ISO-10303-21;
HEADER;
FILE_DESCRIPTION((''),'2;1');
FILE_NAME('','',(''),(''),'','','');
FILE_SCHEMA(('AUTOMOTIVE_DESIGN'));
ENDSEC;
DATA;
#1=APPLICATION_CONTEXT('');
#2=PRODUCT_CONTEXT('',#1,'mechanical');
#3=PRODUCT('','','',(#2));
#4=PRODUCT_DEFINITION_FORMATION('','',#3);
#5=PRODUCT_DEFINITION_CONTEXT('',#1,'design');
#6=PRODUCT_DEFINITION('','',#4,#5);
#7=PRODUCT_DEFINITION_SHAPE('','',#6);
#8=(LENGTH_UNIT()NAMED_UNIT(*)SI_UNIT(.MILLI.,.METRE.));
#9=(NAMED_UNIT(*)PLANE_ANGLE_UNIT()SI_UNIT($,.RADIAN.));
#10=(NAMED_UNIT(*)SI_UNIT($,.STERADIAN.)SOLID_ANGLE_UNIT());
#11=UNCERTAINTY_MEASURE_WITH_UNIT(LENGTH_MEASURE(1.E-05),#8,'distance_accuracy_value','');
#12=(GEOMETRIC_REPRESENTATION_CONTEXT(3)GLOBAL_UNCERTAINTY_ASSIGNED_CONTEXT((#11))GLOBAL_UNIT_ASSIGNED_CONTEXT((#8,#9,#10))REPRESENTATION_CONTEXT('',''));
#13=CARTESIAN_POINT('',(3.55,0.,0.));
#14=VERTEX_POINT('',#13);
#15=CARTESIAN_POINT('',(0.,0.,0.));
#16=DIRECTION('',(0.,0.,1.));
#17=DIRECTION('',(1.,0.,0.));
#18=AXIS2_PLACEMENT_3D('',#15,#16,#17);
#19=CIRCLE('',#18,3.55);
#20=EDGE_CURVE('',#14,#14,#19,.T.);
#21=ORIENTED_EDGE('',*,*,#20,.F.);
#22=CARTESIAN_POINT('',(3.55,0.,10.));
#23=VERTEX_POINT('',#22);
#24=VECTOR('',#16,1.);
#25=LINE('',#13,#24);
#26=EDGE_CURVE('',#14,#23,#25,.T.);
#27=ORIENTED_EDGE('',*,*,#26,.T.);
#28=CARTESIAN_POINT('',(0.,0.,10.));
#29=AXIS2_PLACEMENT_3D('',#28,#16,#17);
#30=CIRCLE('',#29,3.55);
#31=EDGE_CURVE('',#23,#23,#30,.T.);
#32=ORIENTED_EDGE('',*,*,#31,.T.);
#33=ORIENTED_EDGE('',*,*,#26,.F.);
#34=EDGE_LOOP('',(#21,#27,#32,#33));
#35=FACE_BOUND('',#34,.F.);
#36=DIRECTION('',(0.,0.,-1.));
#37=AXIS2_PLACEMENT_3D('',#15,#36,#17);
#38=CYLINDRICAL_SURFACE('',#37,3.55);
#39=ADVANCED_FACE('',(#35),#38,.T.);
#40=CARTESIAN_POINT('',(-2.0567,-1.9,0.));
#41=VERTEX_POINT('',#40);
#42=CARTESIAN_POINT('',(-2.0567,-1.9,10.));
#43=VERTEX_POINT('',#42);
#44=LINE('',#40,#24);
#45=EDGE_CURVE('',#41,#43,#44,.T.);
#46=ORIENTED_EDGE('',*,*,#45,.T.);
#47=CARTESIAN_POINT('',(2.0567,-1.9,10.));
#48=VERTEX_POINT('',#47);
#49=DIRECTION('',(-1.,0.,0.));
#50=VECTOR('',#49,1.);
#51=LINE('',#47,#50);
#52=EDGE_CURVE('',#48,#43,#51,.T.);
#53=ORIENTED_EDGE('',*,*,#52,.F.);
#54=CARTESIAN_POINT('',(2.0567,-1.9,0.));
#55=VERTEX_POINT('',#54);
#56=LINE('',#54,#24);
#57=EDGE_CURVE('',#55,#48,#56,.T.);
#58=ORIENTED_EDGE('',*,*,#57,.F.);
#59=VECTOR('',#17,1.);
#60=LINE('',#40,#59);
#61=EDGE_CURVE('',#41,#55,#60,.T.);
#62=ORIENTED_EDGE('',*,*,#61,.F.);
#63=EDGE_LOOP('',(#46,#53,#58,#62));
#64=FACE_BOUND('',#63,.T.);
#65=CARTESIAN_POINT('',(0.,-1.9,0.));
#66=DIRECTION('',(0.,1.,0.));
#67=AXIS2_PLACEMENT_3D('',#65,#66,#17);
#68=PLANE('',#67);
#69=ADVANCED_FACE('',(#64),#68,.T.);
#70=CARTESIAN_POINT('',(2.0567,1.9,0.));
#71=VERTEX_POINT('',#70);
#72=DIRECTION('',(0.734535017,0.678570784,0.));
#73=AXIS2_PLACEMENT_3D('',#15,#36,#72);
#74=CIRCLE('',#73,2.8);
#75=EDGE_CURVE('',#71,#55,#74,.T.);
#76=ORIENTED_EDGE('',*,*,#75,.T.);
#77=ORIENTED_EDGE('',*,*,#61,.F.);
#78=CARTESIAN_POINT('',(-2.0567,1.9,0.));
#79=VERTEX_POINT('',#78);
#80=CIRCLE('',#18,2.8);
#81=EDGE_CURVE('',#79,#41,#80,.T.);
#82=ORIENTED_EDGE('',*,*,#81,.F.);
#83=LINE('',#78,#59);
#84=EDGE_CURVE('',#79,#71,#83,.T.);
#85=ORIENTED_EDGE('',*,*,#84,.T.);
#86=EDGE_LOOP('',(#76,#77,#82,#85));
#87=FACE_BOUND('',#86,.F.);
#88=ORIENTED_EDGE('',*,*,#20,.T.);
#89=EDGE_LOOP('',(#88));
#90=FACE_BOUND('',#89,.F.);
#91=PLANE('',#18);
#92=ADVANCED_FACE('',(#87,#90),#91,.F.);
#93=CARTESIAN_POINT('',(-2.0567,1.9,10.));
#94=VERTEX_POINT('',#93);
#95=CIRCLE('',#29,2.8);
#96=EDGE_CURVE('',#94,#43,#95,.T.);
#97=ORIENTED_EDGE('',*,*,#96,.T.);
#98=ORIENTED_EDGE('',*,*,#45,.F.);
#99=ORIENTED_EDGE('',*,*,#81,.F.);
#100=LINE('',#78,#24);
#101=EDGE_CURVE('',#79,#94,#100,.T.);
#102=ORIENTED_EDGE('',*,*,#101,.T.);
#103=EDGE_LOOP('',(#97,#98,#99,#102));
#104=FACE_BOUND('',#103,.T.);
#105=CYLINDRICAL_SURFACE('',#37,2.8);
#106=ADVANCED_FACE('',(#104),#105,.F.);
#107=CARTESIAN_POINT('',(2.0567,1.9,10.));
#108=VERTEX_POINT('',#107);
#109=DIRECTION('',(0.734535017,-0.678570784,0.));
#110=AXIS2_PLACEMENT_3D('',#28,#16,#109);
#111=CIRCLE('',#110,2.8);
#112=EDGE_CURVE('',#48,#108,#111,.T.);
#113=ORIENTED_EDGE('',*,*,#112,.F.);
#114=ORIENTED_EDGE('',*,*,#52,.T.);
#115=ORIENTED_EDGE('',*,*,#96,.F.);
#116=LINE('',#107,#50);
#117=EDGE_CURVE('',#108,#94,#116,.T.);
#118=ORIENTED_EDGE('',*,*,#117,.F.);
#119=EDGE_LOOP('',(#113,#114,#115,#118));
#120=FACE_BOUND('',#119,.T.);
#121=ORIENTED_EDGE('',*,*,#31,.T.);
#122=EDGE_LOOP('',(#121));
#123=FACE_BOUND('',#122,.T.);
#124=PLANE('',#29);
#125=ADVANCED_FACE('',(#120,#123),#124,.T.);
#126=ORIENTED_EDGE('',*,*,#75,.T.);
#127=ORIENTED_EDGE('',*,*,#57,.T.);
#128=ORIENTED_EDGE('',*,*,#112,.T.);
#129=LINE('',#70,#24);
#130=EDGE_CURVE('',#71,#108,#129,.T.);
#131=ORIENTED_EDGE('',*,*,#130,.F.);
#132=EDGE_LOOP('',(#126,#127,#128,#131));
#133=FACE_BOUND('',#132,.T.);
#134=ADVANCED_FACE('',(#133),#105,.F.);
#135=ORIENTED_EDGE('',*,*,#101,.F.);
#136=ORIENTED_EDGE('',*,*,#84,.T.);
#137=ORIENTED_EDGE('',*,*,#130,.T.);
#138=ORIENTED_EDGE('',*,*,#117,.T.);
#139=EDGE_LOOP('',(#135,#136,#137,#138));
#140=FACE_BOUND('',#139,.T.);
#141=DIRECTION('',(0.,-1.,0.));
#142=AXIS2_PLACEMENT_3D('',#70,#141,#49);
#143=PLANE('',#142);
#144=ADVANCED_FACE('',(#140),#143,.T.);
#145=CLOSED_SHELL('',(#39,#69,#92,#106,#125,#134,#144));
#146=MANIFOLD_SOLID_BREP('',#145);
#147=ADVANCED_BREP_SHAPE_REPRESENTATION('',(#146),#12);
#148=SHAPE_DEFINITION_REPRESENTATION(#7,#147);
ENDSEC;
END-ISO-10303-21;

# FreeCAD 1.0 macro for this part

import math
import FreeCAD as App
import Part
import Sketcher

doc = App.newDocument("Part")
body = doc.addObject("PartDesign::Body", "Body")

sketch1 = body.newObject("Sketcher::SketchObject", "Sketch")
sketch1.AttachmentSupport = (doc.getObject("XY_Plane"), [""])
sketch1.MapMode = "FlatFace"
sketch1.addGeometry([
    Part.Circle(App.Vector(0, 0, 0), App.Vector(0, 0, 1), 3.55),
    Part.ArcOfCircle(Part.Circle(App.Vector(0, 0, 0), App.Vector(0, 0, 1), 2.8), math.radians(-42.73206), math.radians(42.73206)),
    Part.LineSegment(App.Vector(2.0567, -1.9, 0), App.Vector(-2.0567, -1.9, 0)),
    Part.ArcOfCircle(Part.Circle(App.Vector(0, 0, 0), App.Vector(0, 0, 1), 2.8), math.radians(137.26794), math.radians(222.73206)),
    Part.LineSegment(App.Vector(-2.0567, 1.9, 0), App.Vector(2.0567, 1.9, 0)),
], False)
sketch1.addConstraint([
    Sketcher.Constraint("Coincident", 1, 1, 2, 1),
    Sketcher.Constraint("Coincident", 2, 2, 3, 2),
    Sketcher.Constraint("Coincident", 3, 1, 4, 1),
    Sketcher.Constraint("Coincident", 4, 2, 1, 2),
    Sketcher.Constraint("Horizontal", 2),
    Sketcher.Constraint("Horizontal", 4),
    Sketcher.Constraint("Coincident", 0, 3, -1, 1),
    Sketcher.Constraint("Coincident", 1, 3, -1, 1),
    Sketcher.Constraint("Coincident", 3, 3, -1, 1),
    Sketcher.Constraint("Equal", 1, 3),
    Sketcher.Constraint("Vertical", 2, 2, 3, 1),
    Sketcher.Constraint("Diameter", 0, 7.1),
    Sketcher.Constraint("Radius", 1, 2.8),
    Sketcher.Constraint("DistanceX", 2, 2, 2, 1, 4.1134),
])
pad1 = body.newObject("PartDesign::Pad", "Pad")
pad1.Profile = sketch1
pad1.Length = 10

doc.recompute()
